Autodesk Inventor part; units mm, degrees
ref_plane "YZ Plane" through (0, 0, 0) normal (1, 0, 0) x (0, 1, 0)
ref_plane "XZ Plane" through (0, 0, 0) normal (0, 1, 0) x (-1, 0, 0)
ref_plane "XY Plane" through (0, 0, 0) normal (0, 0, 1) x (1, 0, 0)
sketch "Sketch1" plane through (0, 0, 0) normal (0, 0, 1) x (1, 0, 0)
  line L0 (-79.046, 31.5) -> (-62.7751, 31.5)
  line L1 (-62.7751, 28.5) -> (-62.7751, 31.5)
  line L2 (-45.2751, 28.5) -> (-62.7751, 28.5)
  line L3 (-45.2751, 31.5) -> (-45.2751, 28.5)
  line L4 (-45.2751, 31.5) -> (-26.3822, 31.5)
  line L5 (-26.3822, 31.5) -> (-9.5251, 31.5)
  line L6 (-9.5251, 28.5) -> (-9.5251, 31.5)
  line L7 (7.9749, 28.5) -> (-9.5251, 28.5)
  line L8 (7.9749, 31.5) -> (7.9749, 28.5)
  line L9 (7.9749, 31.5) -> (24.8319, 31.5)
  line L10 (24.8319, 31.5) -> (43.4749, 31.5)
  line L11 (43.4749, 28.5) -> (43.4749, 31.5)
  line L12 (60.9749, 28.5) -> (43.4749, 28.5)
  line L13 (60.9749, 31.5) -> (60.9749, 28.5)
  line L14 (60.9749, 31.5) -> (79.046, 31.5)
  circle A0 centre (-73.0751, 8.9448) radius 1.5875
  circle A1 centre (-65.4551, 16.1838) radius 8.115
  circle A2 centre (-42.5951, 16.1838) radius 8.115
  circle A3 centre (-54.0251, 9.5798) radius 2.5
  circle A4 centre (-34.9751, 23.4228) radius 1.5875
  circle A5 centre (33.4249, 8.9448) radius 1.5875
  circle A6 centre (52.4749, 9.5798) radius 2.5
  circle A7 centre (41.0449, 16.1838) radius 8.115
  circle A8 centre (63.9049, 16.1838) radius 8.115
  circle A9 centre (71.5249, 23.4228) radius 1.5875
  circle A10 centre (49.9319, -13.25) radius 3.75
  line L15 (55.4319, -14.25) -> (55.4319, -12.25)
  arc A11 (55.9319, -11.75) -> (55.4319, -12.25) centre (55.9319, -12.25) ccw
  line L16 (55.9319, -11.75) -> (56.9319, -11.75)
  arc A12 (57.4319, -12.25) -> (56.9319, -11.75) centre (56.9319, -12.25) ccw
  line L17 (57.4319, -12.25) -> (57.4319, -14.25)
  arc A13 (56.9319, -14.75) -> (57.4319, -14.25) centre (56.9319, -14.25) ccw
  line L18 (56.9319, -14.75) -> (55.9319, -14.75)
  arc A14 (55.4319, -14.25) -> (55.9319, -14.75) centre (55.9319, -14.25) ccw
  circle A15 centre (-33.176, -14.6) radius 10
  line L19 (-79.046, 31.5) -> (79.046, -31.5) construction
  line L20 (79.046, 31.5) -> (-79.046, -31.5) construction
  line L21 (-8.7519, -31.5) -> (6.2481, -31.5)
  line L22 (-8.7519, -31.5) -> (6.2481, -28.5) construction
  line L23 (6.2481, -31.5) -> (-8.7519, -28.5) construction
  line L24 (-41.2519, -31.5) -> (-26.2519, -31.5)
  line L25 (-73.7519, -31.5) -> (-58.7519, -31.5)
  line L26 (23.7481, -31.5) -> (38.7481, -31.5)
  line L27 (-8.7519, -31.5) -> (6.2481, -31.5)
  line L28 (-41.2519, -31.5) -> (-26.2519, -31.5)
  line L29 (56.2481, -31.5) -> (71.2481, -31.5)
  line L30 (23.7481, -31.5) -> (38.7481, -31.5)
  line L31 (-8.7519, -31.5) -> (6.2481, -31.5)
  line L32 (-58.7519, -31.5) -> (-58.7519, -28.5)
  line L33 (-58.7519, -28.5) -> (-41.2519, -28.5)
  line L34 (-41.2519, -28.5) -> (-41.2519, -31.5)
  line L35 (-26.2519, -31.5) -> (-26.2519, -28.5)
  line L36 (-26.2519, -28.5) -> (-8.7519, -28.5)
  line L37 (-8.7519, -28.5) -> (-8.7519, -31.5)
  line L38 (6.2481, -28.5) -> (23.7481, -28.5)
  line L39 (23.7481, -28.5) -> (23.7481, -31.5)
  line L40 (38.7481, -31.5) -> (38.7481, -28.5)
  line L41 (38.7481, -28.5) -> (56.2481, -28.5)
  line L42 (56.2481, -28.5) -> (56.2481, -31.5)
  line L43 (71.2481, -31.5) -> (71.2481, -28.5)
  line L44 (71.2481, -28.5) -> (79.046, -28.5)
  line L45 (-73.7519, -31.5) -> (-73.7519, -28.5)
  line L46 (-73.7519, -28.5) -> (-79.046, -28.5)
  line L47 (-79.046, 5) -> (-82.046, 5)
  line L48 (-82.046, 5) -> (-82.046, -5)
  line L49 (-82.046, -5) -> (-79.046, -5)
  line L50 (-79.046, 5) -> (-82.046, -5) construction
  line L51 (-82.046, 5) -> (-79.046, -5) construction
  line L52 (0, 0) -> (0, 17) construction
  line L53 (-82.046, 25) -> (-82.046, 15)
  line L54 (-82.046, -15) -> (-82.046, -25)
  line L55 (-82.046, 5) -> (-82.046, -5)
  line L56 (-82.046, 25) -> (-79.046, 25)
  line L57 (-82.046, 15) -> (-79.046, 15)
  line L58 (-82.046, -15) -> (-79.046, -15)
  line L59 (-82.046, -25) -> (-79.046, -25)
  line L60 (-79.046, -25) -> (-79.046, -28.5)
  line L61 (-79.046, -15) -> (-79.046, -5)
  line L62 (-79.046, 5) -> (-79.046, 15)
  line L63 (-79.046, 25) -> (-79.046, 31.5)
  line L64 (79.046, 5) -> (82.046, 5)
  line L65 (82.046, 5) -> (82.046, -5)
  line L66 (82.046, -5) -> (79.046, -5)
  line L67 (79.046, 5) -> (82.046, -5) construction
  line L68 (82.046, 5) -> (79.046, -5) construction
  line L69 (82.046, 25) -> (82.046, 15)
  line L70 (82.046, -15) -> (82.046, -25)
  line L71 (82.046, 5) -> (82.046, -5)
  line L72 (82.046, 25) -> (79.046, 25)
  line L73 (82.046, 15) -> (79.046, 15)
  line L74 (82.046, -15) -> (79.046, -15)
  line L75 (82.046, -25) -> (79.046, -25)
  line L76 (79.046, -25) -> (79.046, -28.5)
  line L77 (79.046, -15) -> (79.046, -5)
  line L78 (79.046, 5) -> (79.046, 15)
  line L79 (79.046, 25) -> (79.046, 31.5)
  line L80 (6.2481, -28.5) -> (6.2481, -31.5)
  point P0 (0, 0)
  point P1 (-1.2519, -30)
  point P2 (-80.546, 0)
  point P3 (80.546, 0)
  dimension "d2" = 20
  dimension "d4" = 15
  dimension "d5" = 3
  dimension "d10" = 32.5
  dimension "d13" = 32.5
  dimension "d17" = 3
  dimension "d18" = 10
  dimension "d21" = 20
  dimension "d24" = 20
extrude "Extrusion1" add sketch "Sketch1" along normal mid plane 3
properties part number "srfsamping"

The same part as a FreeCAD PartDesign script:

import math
import FreeCAD as App
import Part
import Sketcher
from FreeCAD import Vector
Q = App.Units.Quantity


def add_polygon(sketch, points):
    """Adds a closed chain of lines whose ends are joined by coincident constraints."""
    first, n = sketch.GeometryCount, len(points)
    for a, b in zip(points, points[1:] + points[:1]):
        sketch.addGeometry(Part.LineSegment(App.Vector(*a, 0), App.Vector(*b, 0)), False)
    for i in range(n):
        sketch.addConstraint(Sketcher.Constraint("Coincident", first + i, 2, first + (i + 1) % n, 1))

doc = App.newDocument("Part")
params = doc.addObject("Spreadsheet::Sheet", "Params")
for row, (alias, value) in enumerate([
    ("sketch1_diameter", "20 mm"),
    ("sketch1_width", "3 mm"),
    ("sketch1_width2", "15 mm"),
    ("sketch1_height", "10 mm"),
    ("sketch1_diameter2", "5 mm"),
    ("pad1_length", "3 mm"),
], start=1):
    params.set(f"A{row}", alias)
    params.set(f"B{row}", "=" + value)
    params.setAlias(f"B{row}", alias)

body = doc.addObject("PartDesign::Body", "Body")

sketch1 = doc.addObject("Sketcher::SketchObject", "Sketch")
body.addObject(sketch1)
sketch1.AttachmentSupport = (doc.XY_Plane, [""])
sketch1.MapMode = "FlatFace"
add_polygon(sketch1, [(-62.8, 31.5), (-79, 31.5), (-79, 25), (-82, 25), (-82, 15), (-79, 15), (-79, 5), (-82, 5), (-82, -5), (-79, -5), (-79, -15), (-82, -15), (-82, -25), (-79, -25), (-79, -28.5), (-73.8, -28.5), (-73.8, -31.5), (-58.8, -31.5), (-58.8, -28.5), (-41.3, -28.5), (-41.3, -31.5), (-26.3, -31.5), (-26.3, -28.5), (-8.8, -28.5), (-8.8, -31.5), (6.2, -31.5), (6.2, -28.5), (23.7, -28.5), (23.7, -31.5), (38.7, -31.5), (38.7, -28.5), (56.2, -28.5), (56.2, -31.5), (71.2, -31.5), (71.2, -28.5), (79, -28.5), (79, -25), (82, -25), (82, -15), (79, -15), (79, -5), (82, -5), (82, 5), (79, 5), (79, 15), (82, 15), (82, 25), (79, 25), (79, 31.5), (61, 31.5), (61, 28.5), (43.5, 28.5), (43.5, 31.5), (8, 31.5), (8, 28.5), (-9.5, 28.5), (-9.5, 31.5), (-45.3, 31.5), (-45.3, 28.5), (-62.8, 28.5)])
sketch1.addGeometry(Part.Circle(Vector(-33.2, -14.6, 0), Vector(0, 0, 1), 10), False)
sketch1.addGeometry(Part.Circle(Vector(49.9, -13.2, 0), Vector(0, 0, 1), 3.8), False)
sketch1.addGeometry(Part.ArcOfCircle(Part.Circle(Vector(55.9, -14.2, 0), Vector(0, 0, 1), 0.5), math.radians(180), math.radians(270)), False)
sketch1.addGeometry(Part.LineSegment(Vector(55.4, -14.2, 0), Vector(55.4, -12.2, 0)), False)
sketch1.addGeometry(Part.ArcOfCircle(Part.Circle(Vector(55.9, -12.2, 0), Vector(0, 0, 1), 0.5), math.radians(90), math.radians(180)), False)
sketch1.addGeometry(Part.LineSegment(Vector(55.9, -11.8, 0), Vector(56.9, -11.8, 0)), False)
sketch1.addGeometry(Part.ArcOfCircle(Part.Circle(Vector(56.9, -12.2, 0), Vector(0, 0, 1), 0.5), math.radians(0), math.radians(90)), False)
sketch1.addGeometry(Part.LineSegment(Vector(57.4, -12.2, 0), Vector(57.4, -14.2, 0)), False)
sketch1.addGeometry(Part.ArcOfCircle(Part.Circle(Vector(56.9, -14.2, 0), Vector(0, 0, 1), 0.5), math.radians(-90), math.radians(0)), False)
sketch1.addGeometry(Part.LineSegment(Vector(56.9, -14.8, 0), Vector(55.9, -14.8, 0)), False)
sketch1.addGeometry(Part.Circle(Vector(-73.1, 8.9, 0), Vector(0, 0, 1), 1.6), False)
sketch1.addGeometry(Part.Circle(Vector(-54, 9.6, 0), Vector(0, 0, 1), 2.5), False)
sketch1.addGeometry(Part.Circle(Vector(-65.5, 16.2, 0), Vector(0, 0, 1), 8.1), False)
sketch1.addGeometry(Part.Circle(Vector(-42.6, 16.2, 0), Vector(0, 0, 1), 8.1), False)
sketch1.addGeometry(Part.Circle(Vector(-35, 23.4, 0), Vector(0, 0, 1), 1.6), False)
sketch1.addGeometry(Part.Circle(Vector(33.4, 8.9, 0), Vector(0, 0, 1), 1.6), False)
sketch1.addGeometry(Part.Circle(Vector(52.5, 9.6, 0), Vector(0, 0, 1), 2.5), False)
sketch1.addGeometry(Part.Circle(Vector(41, 16.2, 0), Vector(0, 0, 1), 8.1), False)
sketch1.addGeometry(Part.Circle(Vector(63.9, 16.2, 0), Vector(0, 0, 1), 8.1), False)
sketch1.addGeometry(Part.Circle(Vector(71.5, 23.4, 0), Vector(0, 0, 1), 1.6), False)
sketch1.addConstraint([
    Sketcher.Constraint("Tangent", 62, 1, 63, 1),
    Sketcher.Constraint("Tangent", 63, 2, 64, 2),
    Sketcher.Constraint("Tangent", 64, 1, 65, 1),
    Sketcher.Constraint("Tangent", 65, 2, 66, 2),
    Sketcher.Constraint("Tangent", 66, 1, 67, 1),
    Sketcher.Constraint("Tangent", 67, 2, 68, 2),
    Sketcher.Constraint("Tangent", 68, 1, 69, 1),
    Sketcher.Constraint("Tangent", 69, 2, 62, 2),
    Sketcher.Constraint("Horizontal", 0),
    Sketcher.Constraint("Vertical", 1),
    Sketcher.Constraint("Horizontal", 2),
    Sketcher.Constraint("Vertical", 3),
    Sketcher.Constraint("Horizontal", 4),
    Sketcher.Constraint("Vertical", 5),
    Sketcher.Constraint("Horizontal", 6),
    Sketcher.Constraint("Vertical", 7),
    Sketcher.Constraint("Horizontal", 8),
    Sketcher.Constraint("Vertical", 9),
    Sketcher.Constraint("Horizontal", 10),
    Sketcher.Constraint("Vertical", 11),
    Sketcher.Constraint("Horizontal", 12),
    Sketcher.Constraint("Vertical", 13),
    Sketcher.Constraint("Horizontal", 14),
    Sketcher.Constraint("Vertical", 15),
    Sketcher.Constraint("Horizontal", 16),
    Sketcher.Constraint("Vertical", 17),
    Sketcher.Constraint("Horizontal", 18),
    Sketcher.Constraint("Vertical", 19),
    Sketcher.Constraint("Horizontal", 20),
    Sketcher.Constraint("Vertical", 21),
    Sketcher.Constraint("Horizontal", 22),
    Sketcher.Constraint("Vertical", 23),
    Sketcher.Constraint("Horizontal", 24),
    Sketcher.Constraint("Vertical", 25),
    Sketcher.Constraint("Horizontal", 26),
    Sketcher.Constraint("Vertical", 27),
    Sketcher.Constraint("Horizontal", 28),
    Sketcher.Constraint("Vertical", 29),
    Sketcher.Constraint("Horizontal", 30),
    Sketcher.Constraint("Vertical", 31),
    Sketcher.Constraint("Horizontal", 32),
    Sketcher.Constraint("Vertical", 33),
    Sketcher.Constraint("Horizontal", 34),
    Sketcher.Constraint("Vertical", 35),
    Sketcher.Constraint("Horizontal", 36),
    Sketcher.Constraint("Vertical", 37),
    Sketcher.Constraint("Horizontal", 38),
    Sketcher.Constraint("Vertical", 39),
    Sketcher.Constraint("Horizontal", 40),
    Sketcher.Constraint("Vertical", 41),
    Sketcher.Constraint("Horizontal", 42),
    Sketcher.Constraint("Vertical", 43),
    Sketcher.Constraint("Horizontal", 44),
    Sketcher.Constraint("Vertical", 45),
    Sketcher.Constraint("Horizontal", 46),
    Sketcher.Constraint("Vertical", 47),
    Sketcher.Constraint("Horizontal", 48),
    Sketcher.Constraint("Vertical", 49),
    Sketcher.Constraint("Horizontal", 50),
    Sketcher.Constraint("Vertical", 51),
    Sketcher.Constraint("Horizontal", 52),
    Sketcher.Constraint("Vertical", 53),
    Sketcher.Constraint("Horizontal", 54),
    Sketcher.Constraint("Vertical", 55),
    Sketcher.Constraint("Horizontal", 56),
    Sketcher.Constraint("Vertical", 57),
    Sketcher.Constraint("Horizontal", 58),
    Sketcher.Constraint("Vertical", 59),
    Sketcher.Constraint("Vertical", 63),
    Sketcher.Constraint("Horizontal", 65),
    Sketcher.Constraint("Vertical", 67),
    Sketcher.Constraint("Horizontal", 69),
    Sketcher.Constraint("Equal", 62, 64),
    Sketcher.Constraint("Equal", 64, 66),
    Sketcher.Constraint("Equal", 66, 68),
    Sketcher.Constraint("Equal", 72, 73),
    Sketcher.Constraint("Equal", 70, 74),
    Sketcher.Constraint("Equal", 74, 75),
    Sketcher.Constraint("Equal", 71, 76),
    Sketcher.Constraint("Equal", 73, 77),
    Sketcher.Constraint("Equal", 77, 78),
    Sketcher.Constraint("Equal", 75, 79),
    Sketcher.Constraint("Symmetric", 1, 2, 35, 2, -1, 1),
    Sketcher.Constraint("Symmetric", 3, 2, 37, 2, -1, 1),
    Sketcher.Constraint("Symmetric", 5, 2, 39, 2, -1, 1),
    Sketcher.Constraint("Symmetric", 7, 2, 41, 2, -1, 1),
    Sketcher.Constraint("Symmetric", 9, 2, 43, 2, -1, 1),
    Sketcher.Constraint("Symmetric", 11, 2, 45, 2, -1, 1),
    Sketcher.Constraint("Symmetric", 13, 2, 34, 2, -2),
    Sketcher.Constraint("Symmetric", 11, 2, 36, 2, -2),
    Sketcher.Constraint("Symmetric", 9, 2, 38, 2, -2),
    Sketcher.Constraint("Symmetric", 0, 2, 47, 2, -2),
    Sketcher.Constraint("Horizontal", 72, 3, 73, 3),
    Sketcher.Constraint("Horizontal", 70, 3, 75, 3),
    Sketcher.Constraint("Horizontal", 71, 3, 76, 3),
    Sketcher.Constraint("Horizontal", 73, 3, 77, 3),
    Sketcher.Constraint("Horizontal", 77, 3, 78, 3),
    Sketcher.Constraint("Horizontal", 74, 3, 79, 3),
    Sketcher.Constraint("Horizontal", 14, 2, 17, 2),
    Sketcher.Constraint("Horizontal", 16, 2, 19, 2),
    Sketcher.Constraint("Horizontal", 18, 2, 21, 2),
    Sketcher.Constraint("Horizontal", 20, 2, 23, 2),
    Sketcher.Constraint("Horizontal", 22, 2, 25, 2),
    Sketcher.Constraint("Horizontal", 24, 2, 27, 2),
    Sketcher.Constraint("Horizontal", 26, 2, 29, 2),
    Sketcher.Constraint("Horizontal", 28, 2, 31, 2),
    Sketcher.Constraint("Horizontal", 8, 2, 39, 2),
    Sketcher.Constraint("Horizontal", 48, 2, 51, 2),
    Sketcher.Constraint("Horizontal", 50, 2, 53, 2),
    Sketcher.Constraint("Horizontal", 52, 2, 55, 2),
    Sketcher.Constraint("Horizontal", 54, 2, 57, 2),
    Sketcher.Constraint("Vertical", 1, 2, 4, 2),
    Sketcher.Constraint("Vertical", 3, 2, 6, 2),
    Sketcher.Constraint("Equal", 16, 20),
    Sketcher.Constraint("Equal", 18, 22),
    Sketcher.Constraint("Equal", 20, 24),
    Sketcher.Constraint("Equal", 22, 26),
    Sketcher.Constraint("Equal", 24, 28),
    Sketcher.Constraint("Equal", 26, 30),
    Sketcher.Constraint("Equal", 28, 32),
    Sketcher.Constraint("Equal", 30, 50),
    Sketcher.Constraint("Equal", 50, 54),
    Sketcher.Constraint("Equal", 54, 58),
    Sketcher.Constraint("Equal", 3, 5),
    Sketcher.Constraint("Equal", 5, 7),
    Sketcher.Constraint("Equal", 46, 15),
    Sketcher.Constraint("Equal", 33, 49),
    Sketcher.Constraint("Diameter", 60, Q("20 mm")),
    Sketcher.Constraint("DistanceX", 2, 2, 2, 1, Q("3 mm")),
    Sketcher.Constraint("DistanceX", 16, 1, 16, 2, Q("15 mm")),
    Sketcher.Constraint("DistanceY", 3, 2, 3, 1, Q("10 mm")),
    Sketcher.Constraint("Diameter", 71, Q("5 mm")),
    Sketcher.Constraint("Diameter", 61, Q("7.5 mm")),
    Sketcher.Constraint("Radius", 62, Q("0.5 mm")),
    Sketcher.Constraint("Diameter", 72, Q("16.23 mm")),
    Sketcher.Constraint("DistanceX", 65, 1, 65, 2, Q("1 mm")),
    Sketcher.Constraint("DistanceY", 63, 1, 63, 2, Q("2 mm")),
    Sketcher.Constraint("Diameter", 70, Q("3.175 mm")),
    Sketcher.Constraint("DistanceX", 18, 1, 18, 2, Q("17.5 mm")),
    Sketcher.Constraint("DistanceX", 52, 2, 52, 1, Q("35.5 mm")),
    Sketcher.Constraint("DistanceY", 1, 2, 1, 1, Q("6.5 mm")),
    Sketcher.Constraint("DistanceY", 13, 2, 13, 1, Q("3.5 mm")),
    Sketcher.Constraint("DistanceX", 56, 2, 56, 1, Q("35.75 mm")),
    Sketcher.Constraint("DistanceY", 60, 3, -1, 1, Q("14.6 mm")),
    Sketcher.Constraint("DistanceX", 0, 2, 0, 1, Q("16.271 mm")),
    Sketcher.Constraint("DistanceX", 14, 1, 14, 2, Q("5.294 mm")),
    Sketcher.Constraint("DistanceX", 34, 1, 34, 2, Q("7.798 mm")),
    Sketcher.Constraint("DistanceY", 61, 3, -1, 1, Q("13.25 mm")),
    Sketcher.Constraint("DistanceY", 62, 3, -1, 1, Q("14.25 mm")),
    Sketcher.Constraint("DistanceX", 60, 3, -1, 1, Q("33.176 mm")),
    Sketcher.Constraint("DistanceX", -1, 1, 61, 3, Q("49.932 mm")),
    Sketcher.Constraint("DistanceX", -1, 1, 62, 3, Q("55.932 mm")),
    Sketcher.Constraint("DistanceX", 70, 3, -1, 1, Q("73.075 mm")),
    Sketcher.Constraint("DistanceX", 71, 3, -1, 1, Q("54.025 mm")),
    Sketcher.Constraint("DistanceX", 72, 3, -1, 1, Q("65.455 mm")),
    Sketcher.Constraint("DistanceX", 73, 3, -1, 1, Q("42.595 mm")),
    Sketcher.Constraint("DistanceX", 74, 3, -1, 1, Q("34.975 mm")),
    Sketcher.Constraint("DistanceX", -1, 1, 75, 3, Q("33.425 mm")),
    Sketcher.Constraint("DistanceX", -1, 1, 76, 3, Q("52.475 mm")),
    Sketcher.Constraint("DistanceX", -1, 1, 77, 3, Q("41.045 mm")),
    Sketcher.Constraint("DistanceX", -1, 1, 78, 3, Q("63.905 mm")),
    Sketcher.Constraint("DistanceX", -1, 1, 79, 3, Q("71.525 mm")),
    Sketcher.Constraint("DistanceY", -1, 1, 70, 3, Q("8.9448 mm")),
    Sketcher.Constraint("DistanceY", -1, 1, 71, 3, Q("9.5798 mm")),
    Sketcher.Constraint("DistanceY", -1, 1, 72, 3, Q("16.1838 mm")),
    Sketcher.Constraint("DistanceY", -1, 1, 74, 3, Q("23.4228 mm")),
])
sketch1.setExpression("Constraints[187]", "Params.sketch1_diameter")
sketch1.setExpression("Constraints[188]", "Params.sketch1_width")
sketch1.setExpression("Constraints[189]", "Params.sketch1_width2")
sketch1.setExpression("Constraints[190]", "Params.sketch1_height")
sketch1.setExpression("Constraints[191]", "Params.sketch1_diameter2")
pad1 = doc.addObject("PartDesign::Pad", "Pad")
body.addObject(pad1)
pad1.Profile = sketch1
pad1.setExpression("Length", "Params.pad1_length")
pad1.Midplane = True

doc.recompute()
